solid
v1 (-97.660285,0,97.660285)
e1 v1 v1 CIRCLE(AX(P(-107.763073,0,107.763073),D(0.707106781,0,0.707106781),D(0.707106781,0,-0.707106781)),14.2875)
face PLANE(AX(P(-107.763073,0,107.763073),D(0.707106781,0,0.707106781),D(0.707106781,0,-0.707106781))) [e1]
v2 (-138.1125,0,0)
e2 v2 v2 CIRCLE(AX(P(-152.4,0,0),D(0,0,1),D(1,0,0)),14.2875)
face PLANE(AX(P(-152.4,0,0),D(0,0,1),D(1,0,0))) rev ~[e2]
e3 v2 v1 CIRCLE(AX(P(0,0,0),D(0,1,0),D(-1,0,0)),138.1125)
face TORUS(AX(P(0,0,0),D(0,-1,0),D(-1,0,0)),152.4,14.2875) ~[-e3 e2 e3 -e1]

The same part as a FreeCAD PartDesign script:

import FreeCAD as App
import Part
import Sketcher
Q = App.Units.Quantity

doc = App.newDocument("Part")
params = doc.addObject("Spreadsheet::Sheet", "Params")
for row, (alias, value) in enumerate([
    ("sketch1_diameter", "1.125 in"),
    ("revolution_angle", "45 deg"),
], start=1):
    params.set(f"A{row}", alias)
    params.set(f"B{row}", "=" + value)
    params.setAlias(f"B{row}", alias)

body = doc.addObject("PartDesign::Body", "Body")

# Sketch on XY plane
sketch1 = body.newObject("Sketcher::SketchObject", "Sketch")
sketch1.AttachmentSupport = (doc.getObject("XY_Plane"), [""])
sketch1.MapMode = "FlatFace"
sketch1.addGeometry(Part.Circle(App.Vector(-152, 0, 0), App.Vector(0, 0, 1), 14), False)
sketch1.addConstraint([
    Sketcher.Constraint("PointOnObject", 0, 3, -1),
    Sketcher.Constraint("Diameter", 0, Q("1.125 in")),
    Sketcher.Constraint("DistanceX", 0, 3, -1, 1, Q("6 in")),
])
sketch1.setExpression("Constraints[1]", "Params.sketch1_diameter")
revolution = body.newObject("PartDesign::Revolution", "Revolution")
revolution.Profile = sketch1
revolution.ReferenceAxis = (sketch1, ["V_Axis"])
revolution.setExpression("Angle", "Params.revolution_angle")

doc.recompute()
